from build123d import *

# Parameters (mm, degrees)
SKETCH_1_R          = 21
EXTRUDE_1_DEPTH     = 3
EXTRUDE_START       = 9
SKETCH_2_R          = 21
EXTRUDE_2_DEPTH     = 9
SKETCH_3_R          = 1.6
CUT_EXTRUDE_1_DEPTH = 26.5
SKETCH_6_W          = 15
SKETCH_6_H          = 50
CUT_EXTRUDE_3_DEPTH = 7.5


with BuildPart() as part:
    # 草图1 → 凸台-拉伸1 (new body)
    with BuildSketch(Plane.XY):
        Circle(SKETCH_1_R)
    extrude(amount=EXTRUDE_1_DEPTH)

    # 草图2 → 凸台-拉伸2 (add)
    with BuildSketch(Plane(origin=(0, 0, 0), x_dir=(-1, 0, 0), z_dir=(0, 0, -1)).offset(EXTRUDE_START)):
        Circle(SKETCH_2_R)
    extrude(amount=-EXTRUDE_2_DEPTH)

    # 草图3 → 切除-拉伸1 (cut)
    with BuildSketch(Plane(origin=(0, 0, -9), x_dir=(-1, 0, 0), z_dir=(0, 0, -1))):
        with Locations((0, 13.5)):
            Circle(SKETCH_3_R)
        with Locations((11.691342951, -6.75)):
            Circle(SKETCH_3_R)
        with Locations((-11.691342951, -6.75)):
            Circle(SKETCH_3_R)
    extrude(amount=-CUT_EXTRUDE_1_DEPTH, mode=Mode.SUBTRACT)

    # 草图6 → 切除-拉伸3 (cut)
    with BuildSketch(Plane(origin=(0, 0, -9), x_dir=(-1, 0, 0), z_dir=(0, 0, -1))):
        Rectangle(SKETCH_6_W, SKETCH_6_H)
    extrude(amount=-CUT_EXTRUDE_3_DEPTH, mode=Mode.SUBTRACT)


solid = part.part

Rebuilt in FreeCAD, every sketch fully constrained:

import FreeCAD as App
import Part
import Sketcher

V = App.Vector

doc = App.newDocument("Part")
params = doc.addObject("Spreadsheet::Sheet", "Params")
for row, (alias, value) in enumerate([
    ("sketch1_diameter", "42 mm"),
    ("pad1_length", "3 mm"),
    ("sketch2_diameter", "42 mm"),
    ("pad2_length", "9 mm"),
    ("sketch3_diameter", "3.2 mm"),
    ("pocket1_length", "26.5 mm"),
    ("sketch4_width", "15 mm"),
    ("sketch4_height", "50 mm"),
    ("pocket2_length", "7.5 mm"),
], start=1):
    params.set(f"A{row}", alias)
    params.set(f"B{row}", "=" + value)
    params.setAlias(f"B{row}", alias)

body = doc.addObject("PartDesign::Body", "Body")

sketch1 = doc.addObject("Sketcher::SketchObject", "Sketch")
body.addObject(sketch1)
sketch1.AttachmentSupport = (doc.XY_Plane, [""])
sketch1.MapMode = "FlatFace"
sketch1.addGeometry(Part.Circle(V(0, 0, 0), V(0, 0, 1), 21), False)
sketch1.addConstraint(Sketcher.Constraint("Coincident", 0, 3, -1, 1))
sketch1.addConstraint(Sketcher.Constraint("Diameter", 0, 42.0))
sketch1.setExpression("Constraints[1]", "Params.sketch1_diameter")
pad1 = doc.addObject("PartDesign::Pad", "Pad")
body.addObject(pad1)
pad1.Profile = sketch1
pad1.setExpression("Length", "Params.pad1_length")

sketch2 = doc.addObject("Sketcher::SketchObject", "Sketch001")
body.addObject(sketch2)
sketch2.AttachmentSupport = (doc.XY_Plane, [""])
sketch2.MapMode = "FlatFace"
sketch2.AttachmentOffset = App.Placement(V(0, 0, -9), App.Rotation())
sketch2.addGeometry(Part.Circle(V(0, 0, 0), V(0, 0, 1), 21), False)
sketch2.addConstraint(Sketcher.Constraint("Coincident", 0, 3, -1, 1))
sketch2.addConstraint(Sketcher.Constraint("Diameter", 0, 42.0))
sketch2.setExpression("Constraints[1]", "Params.sketch2_diameter")
pad2 = doc.addObject("PartDesign::Pad", "Pad001")
body.addObject(pad2)
pad2.Profile = sketch2
pad2.setExpression("Length", "Params.pad2_length")

sketch3 = doc.addObject("Sketcher::SketchObject", "Sketch002")
body.addObject(sketch3)
sketch3.AttachmentSupport = (doc.XY_Plane, [""])
sketch3.MapMode = "FlatFace"
sketch3.AttachmentOffset = App.Placement(V(0, 0, -9), App.Rotation())
sketch3.addGeometry(Part.Circle(V(0, 13.5, 0), V(0, 0, 1), 1.6), False)
sketch3.addGeometry(Part.Circle(V(-11.7, -6.8, 0), V(0, 0, 1), 1.6), False)
sketch3.addGeometry(Part.Circle(V(11.7, -6.8, 0), V(0, 0, 1), 1.6), False)
sketch3.addConstraint(Sketcher.Constraint("Equal", 0, 1))
sketch3.addConstraint(Sketcher.Constraint("Equal", 1, 2))
sketch3.addConstraint(Sketcher.Constraint("Symmetric", 1, 3, 2, 3, -2))
sketch3.addConstraint(Sketcher.Constraint("PointOnObject", 0, 3, -2))
sketch3.addConstraint(Sketcher.Constraint("Diameter", 0, 3.2))
sketch3.addConstraint(Sketcher.Constraint("DistanceY", -1, 1, 0, 3, 13.5))
sketch3.addConstraint(Sketcher.Constraint("DistanceY", 1, 3, -1, 1, 6.75))
sketch3.addConstraint(Sketcher.Constraint("DistanceX", 1, 3, -1, 1, 11.691343))
sketch3.setExpression("Constraints[4]", "Params.sketch3_diameter")
pocket1 = doc.addObject("PartDesign::Pocket", "Pocket")
body.addObject(pocket1)
pocket1.Profile = sketch3
pocket1.setExpression("Length", "Params.pocket1_length")
pocket1.Reversed = True

sketch4 = doc.addObject("Sketcher::SketchObject", "Sketch003")
body.addObject(sketch4)
sketch4.AttachmentSupport = (doc.XY_Plane, [""])
sketch4.MapMode = "FlatFace"
sketch4.AttachmentOffset = App.Placement(V(0, 0, -9), App.Rotation())
sketch4.addGeometry(Part.LineSegment(V(8, 25, 0), V(8, -25, 0)), False)
sketch4.addGeometry(Part.LineSegment(V(8, -25, 0), V(-8, -25, 0)), False)
sketch4.addGeometry(Part.LineSegment(V(-8, -25, 0), V(-8, 25, 0)), False)
sketch4.addGeometry(Part.LineSegment(V(-8, 25, 0), V(8, 25, 0)), False)
sketch4.addConstraint(Sketcher.Constraint("Coincident", 0, 2, 1, 1))
sketch4.addConstraint(Sketcher.Constraint("Coincident", 1, 2, 2, 1))
sketch4.addConstraint(Sketcher.Constraint("Coincident", 2, 2, 3, 1))
sketch4.addConstraint(Sketcher.Constraint("Coincident", 3, 2, 0, 1))
sketch4.addConstraint(Sketcher.Constraint("Vertical", 0))
sketch4.addConstraint(Sketcher.Constraint("Horizontal", 1))
sketch4.addConstraint(Sketcher.Constraint("Vertical", 2))
sketch4.addConstraint(Sketcher.Constraint("Horizontal", 3))
sketch4.addConstraint(Sketcher.Constraint("Symmetric", 0, 2, 2, 2, -1, 1))
sketch4.addConstraint(Sketcher.Constraint("DistanceX", 1, 2, 1, 1, 15.0))
sketch4.addConstraint(Sketcher.Constraint("DistanceY", 0, 2, 0, 1, 50.0))
sketch4.setExpression("Constraints[9]", "Params.sketch4_width")
sketch4.setExpression("Constraints[10]", "Params.sketch4_height")
pocket2 = doc.addObject("PartDesign::Pocket", "Pocket001")
body.addObject(pocket2)
pocket2.Profile = sketch4
pocket2.setExpression("Length", "Params.pocket2_length")
pocket2.Reversed = True

doc.recompute()
